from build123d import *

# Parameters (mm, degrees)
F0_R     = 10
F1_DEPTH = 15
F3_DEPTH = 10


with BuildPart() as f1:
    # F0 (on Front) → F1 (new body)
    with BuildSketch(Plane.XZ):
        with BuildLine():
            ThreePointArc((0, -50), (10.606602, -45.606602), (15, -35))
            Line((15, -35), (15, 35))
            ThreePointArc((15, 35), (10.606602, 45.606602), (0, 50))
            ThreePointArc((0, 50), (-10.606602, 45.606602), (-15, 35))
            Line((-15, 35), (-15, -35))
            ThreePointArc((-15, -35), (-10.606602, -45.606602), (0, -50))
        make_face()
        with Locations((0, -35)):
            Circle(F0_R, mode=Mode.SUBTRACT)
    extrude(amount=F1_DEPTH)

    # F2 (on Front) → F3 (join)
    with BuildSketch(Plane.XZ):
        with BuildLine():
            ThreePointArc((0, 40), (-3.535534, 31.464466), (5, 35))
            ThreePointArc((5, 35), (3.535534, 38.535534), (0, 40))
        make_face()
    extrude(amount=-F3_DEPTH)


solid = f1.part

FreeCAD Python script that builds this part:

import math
import FreeCAD as App
import Part
import Sketcher
from FreeCAD import Vector

doc = App.newDocument("Part")
params = doc.addObject("Spreadsheet::Sheet", "Params")
for row, (alias, value) in enumerate([
    ("sketch1_diameter", "20 mm"),
    ("sketch1_radius", "14.999999 mm"),
    ("sketch1_height", "70 mm"),
    ("pad1_length", "15 mm"),
    ("sketch2_radius", "5 mm"),
    ("pad2_length", "10 mm"),
], start=1):
    params.set(f"A{row}", alias)
    params.set(f"B{row}", "=" + value)
    params.setAlias(f"B{row}", alias)

body = doc.addObject("PartDesign::Body", "Body")

# Sketch on XZ plane
sketch1 = body.newObject("Sketcher::SketchObject", "Sketch")
sketch1.AttachmentSupport = (doc.getObject("XZ_Plane"), [""])
sketch1.MapMode = "FlatFace"
sketch1.addGeometry([
    Part.ArcOfCircle(Part.Circle(Vector(0, -35, 0), Vector(0, 0, 1), 15), math.radians(-90), math.radians(0)),  # 0
    Part.LineSegment(Vector(15, -35, 0), Vector(15, 35, 0)),  # 1
    Part.ArcOfCircle(Part.Circle(Vector(0, 35, 0), Vector(0, 0, 1), 15), math.radians(0), math.radians(90)),  # 2
    Part.ArcOfCircle(Part.Circle(Vector(0, 35, 0), Vector(0, 0, 1), 15), math.radians(90), math.radians(180)),  # 3
    Part.LineSegment(Vector(-15, 35, 0), Vector(-15, -35, 0)),  # 4
    Part.ArcOfCircle(Part.Circle(Vector(0, -35, 0), Vector(0, 0, 1), 15), math.radians(180), math.radians(270)),  # 5
    Part.Circle(Vector(0, -35, 0), Vector(0, 0, 1), 10),  # 6
], False)
sketch1.addConstraint([
    Sketcher.Constraint("Tangent", 0, 2, 1, 1),
    Sketcher.Constraint("Tangent", 1, 2, 2, 1),
    Sketcher.Constraint("Tangent", 2, 2, 3, 1),
    Sketcher.Constraint("Tangent", 3, 2, 4, 1),
    Sketcher.Constraint("Tangent", 4, 2, 5, 1),
    Sketcher.Constraint("Tangent", 5, 2, 0, 1),
    Sketcher.Constraint("Vertical", 1),
    Sketcher.Constraint("Vertical", 4),
    Sketcher.Constraint("Coincident", 6, 3, 0, 3),
    Sketcher.Constraint("Equal", 0, 2),
    Sketcher.Constraint("Equal", 2, 3),
    Sketcher.Constraint("Symmetric", 0, 3, 2, 3, -1, 1),
    Sketcher.Constraint("PointOnObject", 2, 2, -2),
    Sketcher.Constraint("PointOnObject", 5, 2, -2),
    Sketcher.Constraint("Diameter", 6, 20.0),
    Sketcher.Constraint("Radius", 0, 14.999999),
    Sketcher.Constraint("DistanceY", 1, 1, 1, 2, 70.0),
])
sketch1.setExpression("Constraints[14]", "Params.sketch1_diameter")
sketch1.setExpression("Constraints[15]", "Params.sketch1_radius")
sketch1.setExpression("Constraints[16]", "Params.sketch1_height")
pad1 = body.newObject("PartDesign::Pad", "Pad")
pad1.Profile = sketch1
pad1.setExpression("Length", "Params.pad1_length")

# Sketch on XZ plane
sketch2 = body.newObject("Sketcher::SketchObject", "Sketch001")
sketch2.AttachmentSupport = (doc.getObject("XZ_Plane"), [""])
sketch2.MapMode = "FlatFace"
sketch2.addGeometry([
    Part.ArcOfCircle(Part.Circle(Vector(0, 35, 0), Vector(0, 0, 1), 5), math.radians(90), math.radians(360)),
    Part.ArcOfCircle(Part.Circle(Vector(0, 35, 0), Vector(0, 0, 1), 5), math.radians(0), math.radians(90)),
], False)
sketch2.addConstraint([
    Sketcher.Constraint("Tangent", 0, 1, 1, 2),
    Sketcher.Constraint("Coincident", 1, 1, 0, 2),
    Sketcher.Constraint("PointOnObject", 0, 3, -2),
    Sketcher.Constraint("PointOnObject", 0, 1, -2),
    Sketcher.Constraint("Horizontal", 0, 3, 1, 1),
    Sketcher.Constraint("Radius", 0, 5.0),
    Sketcher.Constraint("DistanceY", -1, 1, 0, 3, 35.0),
])
sketch2.setExpression("Constraints[5]", "Params.sketch2_radius")
pad2 = body.newObject("PartDesign::Pad", "Pad001")
pad2.Profile = sketch2
pad2.setExpression("Length", "Params.pad2_length")
pad2.Reversed = True

doc.recompute()
